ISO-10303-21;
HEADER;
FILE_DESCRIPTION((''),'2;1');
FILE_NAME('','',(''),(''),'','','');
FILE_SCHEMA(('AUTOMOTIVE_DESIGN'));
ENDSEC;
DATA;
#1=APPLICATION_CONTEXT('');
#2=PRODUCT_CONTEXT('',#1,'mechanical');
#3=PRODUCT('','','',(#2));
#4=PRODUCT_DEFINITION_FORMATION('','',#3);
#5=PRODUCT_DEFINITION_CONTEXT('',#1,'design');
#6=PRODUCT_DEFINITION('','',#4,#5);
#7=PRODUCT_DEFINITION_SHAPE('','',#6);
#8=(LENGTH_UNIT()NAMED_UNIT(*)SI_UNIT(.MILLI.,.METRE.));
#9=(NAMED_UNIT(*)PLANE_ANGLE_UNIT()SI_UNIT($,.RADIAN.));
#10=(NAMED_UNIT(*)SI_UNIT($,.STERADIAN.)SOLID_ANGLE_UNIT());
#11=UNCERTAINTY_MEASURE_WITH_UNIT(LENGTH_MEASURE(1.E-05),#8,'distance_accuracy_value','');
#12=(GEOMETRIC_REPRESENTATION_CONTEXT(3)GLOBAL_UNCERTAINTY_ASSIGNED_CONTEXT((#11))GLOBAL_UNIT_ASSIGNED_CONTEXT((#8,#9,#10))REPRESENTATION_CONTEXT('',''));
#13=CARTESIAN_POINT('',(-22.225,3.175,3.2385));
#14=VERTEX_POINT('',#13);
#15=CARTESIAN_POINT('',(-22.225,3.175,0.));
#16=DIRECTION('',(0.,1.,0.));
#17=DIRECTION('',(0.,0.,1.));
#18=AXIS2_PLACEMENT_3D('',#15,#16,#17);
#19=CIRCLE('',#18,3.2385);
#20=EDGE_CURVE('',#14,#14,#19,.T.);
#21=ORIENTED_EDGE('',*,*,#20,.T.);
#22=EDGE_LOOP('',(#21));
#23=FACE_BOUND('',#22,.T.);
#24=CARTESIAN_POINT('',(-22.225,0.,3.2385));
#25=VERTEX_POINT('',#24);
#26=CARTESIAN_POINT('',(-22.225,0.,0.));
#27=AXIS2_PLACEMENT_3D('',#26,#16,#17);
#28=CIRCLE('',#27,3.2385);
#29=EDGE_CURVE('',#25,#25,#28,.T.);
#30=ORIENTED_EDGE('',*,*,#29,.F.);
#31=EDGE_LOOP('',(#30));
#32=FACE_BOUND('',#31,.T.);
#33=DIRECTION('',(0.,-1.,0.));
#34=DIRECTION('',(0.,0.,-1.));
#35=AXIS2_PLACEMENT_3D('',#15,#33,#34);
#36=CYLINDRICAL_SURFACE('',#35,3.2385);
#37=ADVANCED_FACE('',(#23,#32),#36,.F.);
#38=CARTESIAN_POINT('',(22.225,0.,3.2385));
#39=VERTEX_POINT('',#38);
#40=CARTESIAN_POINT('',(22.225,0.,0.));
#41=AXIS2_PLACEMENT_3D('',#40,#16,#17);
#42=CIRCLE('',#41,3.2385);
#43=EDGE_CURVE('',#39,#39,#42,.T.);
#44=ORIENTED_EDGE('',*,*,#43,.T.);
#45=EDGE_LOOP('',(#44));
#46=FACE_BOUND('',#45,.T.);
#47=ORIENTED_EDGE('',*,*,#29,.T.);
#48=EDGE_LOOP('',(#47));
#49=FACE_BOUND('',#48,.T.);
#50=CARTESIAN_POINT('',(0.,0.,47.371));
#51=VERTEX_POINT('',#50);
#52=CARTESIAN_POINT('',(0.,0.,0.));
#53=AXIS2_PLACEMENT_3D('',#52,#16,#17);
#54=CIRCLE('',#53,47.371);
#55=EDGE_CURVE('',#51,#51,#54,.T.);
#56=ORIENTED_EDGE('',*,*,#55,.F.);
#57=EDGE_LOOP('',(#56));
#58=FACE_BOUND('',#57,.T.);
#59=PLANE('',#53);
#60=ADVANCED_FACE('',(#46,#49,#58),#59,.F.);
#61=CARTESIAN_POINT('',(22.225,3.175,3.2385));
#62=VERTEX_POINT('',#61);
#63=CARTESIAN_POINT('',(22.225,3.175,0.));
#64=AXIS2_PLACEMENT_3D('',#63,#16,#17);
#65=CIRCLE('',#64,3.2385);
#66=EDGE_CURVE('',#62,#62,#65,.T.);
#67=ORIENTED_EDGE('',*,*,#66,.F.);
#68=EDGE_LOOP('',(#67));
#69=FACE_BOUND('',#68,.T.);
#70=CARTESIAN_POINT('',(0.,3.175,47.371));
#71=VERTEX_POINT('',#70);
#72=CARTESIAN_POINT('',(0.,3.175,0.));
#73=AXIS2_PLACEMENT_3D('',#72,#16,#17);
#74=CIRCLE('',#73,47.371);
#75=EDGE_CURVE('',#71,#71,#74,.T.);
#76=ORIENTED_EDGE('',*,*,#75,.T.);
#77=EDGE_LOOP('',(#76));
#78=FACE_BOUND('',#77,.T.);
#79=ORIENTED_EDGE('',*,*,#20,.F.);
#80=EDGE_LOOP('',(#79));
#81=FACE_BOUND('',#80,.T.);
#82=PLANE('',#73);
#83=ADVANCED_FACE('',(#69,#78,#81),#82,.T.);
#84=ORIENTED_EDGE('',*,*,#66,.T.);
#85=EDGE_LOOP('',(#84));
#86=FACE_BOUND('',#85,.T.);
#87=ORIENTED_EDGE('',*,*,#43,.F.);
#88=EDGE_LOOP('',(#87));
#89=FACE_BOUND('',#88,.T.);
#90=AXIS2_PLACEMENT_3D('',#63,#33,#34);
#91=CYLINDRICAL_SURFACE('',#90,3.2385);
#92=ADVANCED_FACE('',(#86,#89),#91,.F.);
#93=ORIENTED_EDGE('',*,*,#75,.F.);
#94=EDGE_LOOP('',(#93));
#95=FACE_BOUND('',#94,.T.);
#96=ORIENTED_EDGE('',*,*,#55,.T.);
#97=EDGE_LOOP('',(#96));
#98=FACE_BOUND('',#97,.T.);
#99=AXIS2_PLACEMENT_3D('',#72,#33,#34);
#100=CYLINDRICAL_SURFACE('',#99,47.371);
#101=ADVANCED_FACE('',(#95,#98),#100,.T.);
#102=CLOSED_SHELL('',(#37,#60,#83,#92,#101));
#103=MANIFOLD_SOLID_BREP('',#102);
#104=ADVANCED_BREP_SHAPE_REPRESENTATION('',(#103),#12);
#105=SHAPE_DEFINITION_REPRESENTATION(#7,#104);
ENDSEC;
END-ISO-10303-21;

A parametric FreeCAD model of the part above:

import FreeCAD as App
import Part
import Sketcher
from FreeCAD import Vector
Q = App.Units.Quantity

doc = App.newDocument("Part")
params = doc.addObject("Spreadsheet::Sheet", "Params")
for row, (alias, value) in enumerate([
    ("sketch1_diameter", "3.73 in"),
    ("sketch1_diameter2", "0.255 in"),
    ("pad1_length", "0.125 in"),
], start=1):
    params.set(f"A{row}", alias)
    params.set(f"B{row}", "=" + value)
    params.setAlias(f"B{row}", alias)

body = doc.addObject("PartDesign::Body", "Body")

# Sketch on XZ plane
sketch1 = body.newObject("Sketcher::SketchObject", "Sketch")
sketch1.AttachmentSupport = (doc.getObject("XZ_Plane"), [""])
sketch1.MapMode = "FlatFace"
sketch1.addGeometry(Part.Circle(Vector(0, 0, 0), Vector(0, 0, 1), 47.4), False)
sketch1.addGeometry(Part.Circle(Vector(-22.2, 0, 0), Vector(0, 0, 1), 3.2), False)
sketch1.addGeometry(Part.Circle(Vector(22.2, 0, 0), Vector(0, 0, 1), 3.2), False)
sketch1.addConstraint(Sketcher.Constraint("Coincident", 0, 3, -1, 1))
sketch1.addConstraint(Sketcher.Constraint("Equal", 1, 2))
sketch1.addConstraint(Sketcher.Constraint("Symmetric", 1, 3, 2, 3, -1, 1))
sketch1.addConstraint(Sketcher.Constraint("PointOnObject", 1, 3, -1))
sketch1.addConstraint(Sketcher.Constraint("Diameter", 0, Q("3.73 in")))
sketch1.addConstraint(Sketcher.Constraint("Diameter", 1, Q("0.255 in")))
sketch1.addConstraint(Sketcher.Constraint("DistanceX", 1, 3, 2, 3, Q("1.75 in")))
sketch1.setExpression("Constraints[4]", "Params.sketch1_diameter")
sketch1.setExpression("Constraints[5]", "Params.sketch1_diameter2")
pad1 = body.newObject("PartDesign::Pad", "Pad")
pad1.Profile = sketch1
pad1.setExpression("Length", "Params.pad1_length")
pad1.Reversed = True

doc.recompute()
